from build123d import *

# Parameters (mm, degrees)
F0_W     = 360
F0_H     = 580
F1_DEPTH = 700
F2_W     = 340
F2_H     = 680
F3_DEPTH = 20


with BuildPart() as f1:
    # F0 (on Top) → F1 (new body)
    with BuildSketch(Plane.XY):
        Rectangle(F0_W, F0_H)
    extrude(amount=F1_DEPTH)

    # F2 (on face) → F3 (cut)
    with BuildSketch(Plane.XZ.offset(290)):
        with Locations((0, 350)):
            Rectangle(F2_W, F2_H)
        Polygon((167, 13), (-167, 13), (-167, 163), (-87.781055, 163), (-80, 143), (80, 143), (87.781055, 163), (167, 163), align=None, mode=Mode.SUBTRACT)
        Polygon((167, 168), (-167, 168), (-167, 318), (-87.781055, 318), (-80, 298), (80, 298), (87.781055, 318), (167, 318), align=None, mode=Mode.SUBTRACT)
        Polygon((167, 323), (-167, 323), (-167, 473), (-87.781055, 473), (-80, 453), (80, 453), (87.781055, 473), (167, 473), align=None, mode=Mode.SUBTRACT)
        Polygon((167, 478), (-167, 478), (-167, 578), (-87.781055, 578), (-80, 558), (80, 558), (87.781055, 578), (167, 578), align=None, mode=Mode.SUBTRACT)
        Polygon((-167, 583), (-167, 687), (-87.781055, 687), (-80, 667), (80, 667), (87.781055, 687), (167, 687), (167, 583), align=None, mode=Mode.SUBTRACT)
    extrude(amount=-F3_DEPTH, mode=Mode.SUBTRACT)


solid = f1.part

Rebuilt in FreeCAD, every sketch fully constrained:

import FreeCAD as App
import Part
import Sketcher
from FreeCAD import Vector

doc = App.newDocument("Part")
body = doc.addObject("PartDesign::Body", "Body")

sketch1 = body.newObject("Sketcher::SketchObject", "Sketch")
sketch1.AttachmentSupport = (doc.getObject("XY_Plane"), [""])
sketch1.MapMode = "FlatFace"
sketch1.addGeometry(Part.LineSegment(Vector(-180, 290, 0), Vector(-180, -290, 0)), False)
sketch1.addGeometry(Part.LineSegment(Vector(-180, -290, 0), Vector(180, -290, 0)), False)
sketch1.addGeometry(Part.LineSegment(Vector(180, -290, 0), Vector(180, 290, 0)), False)
sketch1.addGeometry(Part.LineSegment(Vector(180, 290, 0), Vector(-180, 290, 0)), False)
sketch1.addConstraint(Sketcher.Constraint("Coincident", 0, 2, 1, 1))
sketch1.addConstraint(Sketcher.Constraint("Coincident", 1, 2, 2, 1))
sketch1.addConstraint(Sketcher.Constraint("Coincident", 2, 2, 3, 1))
sketch1.addConstraint(Sketcher.Constraint("Coincident", 3, 2, 0, 1))
sketch1.addConstraint(Sketcher.Constraint("Vertical", 0))
sketch1.addConstraint(Sketcher.Constraint("Horizontal", 1))
sketch1.addConstraint(Sketcher.Constraint("Vertical", 2))
sketch1.addConstraint(Sketcher.Constraint("Horizontal", 3))
sketch1.addConstraint(Sketcher.Constraint("Symmetric", 0, 2, 2, 2, -1, 1))
sketch1.addConstraint(Sketcher.Constraint("DistanceX", 1, 1, 1, 2, 360.0))
sketch1.addConstraint(Sketcher.Constraint("DistanceY", 0, 2, 0, 1, 580.0))
pad1 = body.newObject("PartDesign::Pad", "Pad")
pad1.Profile = sketch1
pad1.Length = 700

sketch2 = body.newObject("Sketcher::SketchObject", "Sketch001")
sketch2.AttachmentSupport = (doc.getObject("XZ_Plane"), [""])
sketch2.MapMode = "FlatFace"
sketch2.AttachmentOffset = App.Placement(Vector(0, 0, 290), App.Rotation())
sketch2.addGeometry(Part.LineSegment(Vector(-170, 690, 0), Vector(-170, 10, 0)), False)
sketch2.addGeometry(Part.LineSegment(Vector(-170, 10, 0), Vector(170, 10, 0)), False)
sketch2.addGeometry(Part.LineSegment(Vector(170, 10, 0), Vector(170, 690, 0)), False)
sketch2.addGeometry(Part.LineSegment(Vector(170, 690, 0), Vector(-170, 690, 0)), False)
sketch2.addGeometry(Part.LineSegment(Vector(167, 163, 0), Vector(167, 13, 0)), False)
sketch2.addGeometry(Part.LineSegment(Vector(167, 13, 0), Vector(-167, 13, 0)), False)
sketch2.addGeometry(Part.LineSegment(Vector(-167, 13, 0), Vector(-167, 163, 0)), False)
sketch2.addGeometry(Part.LineSegment(Vector(-167, 163, 0), Vector(-87.781055, 163, 0)), False)
sketch2.addGeometry(Part.LineSegment(Vector(-87.781055, 163, 0), Vector(-80, 143, 0)), False)
sketch2.addGeometry(Part.LineSegment(Vector(-80, 143, 0), Vector(80, 143, 0)), False)
sketch2.addGeometry(Part.LineSegment(Vector(80, 143, 0), Vector(87.781055, 163, 0)), False)
sketch2.addGeometry(Part.LineSegment(Vector(87.781055, 163, 0), Vector(167, 163, 0)), False)
sketch2.addGeometry(Part.LineSegment(Vector(167, 318, 0), Vector(167, 168, 0)), False)
sketch2.addGeometry(Part.LineSegment(Vector(167, 168, 0), Vector(-167, 168, 0)), False)
sketch2.addGeometry(Part.LineSegment(Vector(-167, 168, 0), Vector(-167, 318, 0)), False)
sketch2.addGeometry(Part.LineSegment(Vector(-167, 318, 0), Vector(-87.781055, 318, 0)), False)
sketch2.addGeometry(Part.LineSegment(Vector(-87.781055, 318, 0), Vector(-80, 298, 0)), False)
sketch2.addGeometry(Part.LineSegment(Vector(-80, 298, 0), Vector(80, 298, 0)), False)
sketch2.addGeometry(Part.LineSegment(Vector(80, 298, 0), Vector(87.781055, 318, 0)), False)
sketch2.addGeometry(Part.LineSegment(Vector(87.781055, 318, 0), Vector(167, 318, 0)), False)
sketch2.addGeometry(Part.LineSegment(Vector(167, 473, 0), Vector(167, 323, 0)), False)
sketch2.addGeometry(Part.LineSegment(Vector(167, 323, 0), Vector(-167, 323, 0)), False)
sketch2.addGeometry(Part.LineSegment(Vector(-167, 323, 0), Vector(-167, 473, 0)), False)
sketch2.addGeometry(Part.LineSegment(Vector(-167, 473, 0), Vector(-87.781055, 473, 0)), False)
sketch2.addGeometry(Part.LineSegment(Vector(-87.781055, 473, 0), Vector(-80, 453, 0)), False)
sketch2.addGeometry(Part.LineSegment(Vector(-80, 453, 0), Vector(80, 453, 0)), False)
sketch2.addGeometry(Part.LineSegment(Vector(80, 453, 0), Vector(87.781055, 473, 0)), False)
sketch2.addGeometry(Part.LineSegment(Vector(87.781055, 473, 0), Vector(167, 473, 0)), False)
sketch2.addGeometry(Part.LineSegment(Vector(167, 578, 0), Vector(167, 478, 0)), False)
sketch2.addGeometry(Part.LineSegment(Vector(167, 478, 0), Vector(-167, 478, 0)), False)
sketch2.addGeometry(Part.LineSegment(Vector(-167, 478, 0), Vector(-167, 578, 0)), False)
sketch2.addGeometry(Part.LineSegment(Vector(-167, 578, 0), Vector(-87.781055, 578, 0)), False)
sketch2.addGeometry(Part.LineSegment(Vector(-87.781055, 578, 0), Vector(-80, 558, 0)), False)
sketch2.addGeometry(Part.LineSegment(Vector(-80, 558, 0), Vector(80, 558, 0)), False)
sketch2.addGeometry(Part.LineSegment(Vector(80, 558, 0), Vector(87.781055, 578, 0)), False)
sketch2.addGeometry(Part.LineSegment(Vector(87.781055, 578, 0), Vector(167, 578, 0)), False)
sketch2.addGeometry(Part.LineSegment(Vector(167, 583, 0), Vector(-167, 583, 0)), False)
sketch2.addGeometry(Part.LineSegment(Vector(-167, 583, 0), Vector(-167, 687, 0)), False)
sketch2.addGeometry(Part.LineSegment(Vector(-167, 687, 0), Vector(-87.781055, 687, 0)), False)
sketch2.addGeometry(Part.LineSegment(Vector(-87.781055, 687, 0), Vector(-80, 667, 0)), False)
sketch2.addGeometry(Part.LineSegment(Vector(-80, 667, 0), Vector(80, 667, 0)), False)
sketch2.addGeometry(Part.LineSegment(Vector(80, 667, 0), Vector(87.781055, 687, 0)), False)
sketch2.addGeometry(Part.LineSegment(Vector(87.781055, 687, 0), Vector(167, 687, 0)), False)
sketch2.addGeometry(Part.LineSegment(Vector(167, 687, 0), Vector(167, 583, 0)), False)
sketch2.addConstraint(Sketcher.Constraint("Coincident", 0, 2, 1, 1))
sketch2.addConstraint(Sketcher.Constraint("Coincident", 1, 2, 2, 1))
sketch2.addConstraint(Sketcher.Constraint("Coincident", 2, 2, 3, 1))
sketch2.addConstraint(Sketcher.Constraint("Coincident", 3, 2, 0, 1))
sketch2.addConstraint(Sketcher.Constraint("Coincident", 4, 2, 5, 1))
sketch2.addConstraint(Sketcher.Constraint("Coincident", 5, 2, 6, 1))
sketch2.addConstraint(Sketcher.Constraint("Coincident", 6, 2, 7, 1))
sketch2.addConstraint(Sketcher.Constraint("Coincident", 7, 2, 8, 1))
sketch2.addConstraint(Sketcher.Constraint("Coincident", 8, 2, 9, 1))
sketch2.addConstraint(Sketcher.Constraint("Coincident", 9, 2, 10, 1))
sketch2.addConstraint(Sketcher.Constraint("Coincident", 10, 2, 11, 1))
sketch2.addConstraint(Sketcher.Constraint("Coincident", 11, 2, 4, 1))
sketch2.addConstraint(Sketcher.Constraint("Coincident", 12, 2, 13, 1))
sketch2.addConstraint(Sketcher.Constraint("Coincident", 13, 2, 14, 1))
sketch2.addConstraint(Sketcher.Constraint("Coincident", 14, 2, 15, 1))
sketch2.addConstraint(Sketcher.Constraint("Coincident", 15, 2, 16, 1))
sketch2.addConstraint(Sketcher.Constraint("Coincident", 16, 2, 17, 1))
sketch2.addConstraint(Sketcher.Constraint("Coincident", 17, 2, 18, 1))
sketch2.addConstraint(Sketcher.Constraint("Coincident", 18, 2, 19, 1))
sketch2.addConstraint(Sketcher.Constraint("Coincident", 19, 2, 12, 1))
sketch2.addConstraint(Sketcher.Constraint("Coincident", 20, 2, 21, 1))
sketch2.addConstraint(Sketcher.Constraint("Coincident", 21, 2, 22, 1))
sketch2.addConstraint(Sketcher.Constraint("Coincident", 22, 2, 23, 1))
sketch2.addConstraint(Sketcher.Constraint("Coincident", 23, 2, 24, 1))
sketch2.addConstraint(Sketcher.Constraint("Coincident", 24, 2, 25, 1))
sketch2.addConstraint(Sketcher.Constraint("Coincident", 25, 2, 26, 1))
sketch2.addConstraint(Sketcher.Constraint("Coincident", 26, 2, 27, 1))
sketch2.addConstraint(Sketcher.Constraint("Coincident", 27, 2, 20, 1))
sketch2.addConstraint(Sketcher.Constraint("Coincident", 28, 2, 29, 1))
sketch2.addConstraint(Sketcher.Constraint("Coincident", 29, 2, 30, 1))
sketch2.addConstraint(Sketcher.Constraint("Coincident", 30, 2, 31, 1))
sketch2.addConstraint(Sketcher.Constraint("Coincident", 31, 2, 32, 1))
sketch2.addConstraint(Sketcher.Constraint("Coincident", 32, 2, 33, 1))
sketch2.addConstraint(Sketcher.Constraint("Coincident", 33, 2, 34, 1))
sketch2.addConstraint(Sketcher.Constraint("Coincident", 34, 2, 35, 1))
sketch2.addConstraint(Sketcher.Constraint("Coincident", 35, 2, 28, 1))
sketch2.addConstraint(Sketcher.Constraint("Coincident", 36, 2, 37, 1))
sketch2.addConstraint(Sketcher.Constraint("Coincident", 37, 2, 38, 1))
sketch2.addConstraint(Sketcher.Constraint("Coincident", 38, 2, 39, 1))
sketch2.addConstraint(Sketcher.Constraint("Coincident", 39, 2, 40, 1))
sketch2.addConstraint(Sketcher.Constraint("Coincident", 40, 2, 41, 1))
sketch2.addConstraint(Sketcher.Constraint("Coincident", 41, 2, 42, 1))
sketch2.addConstraint(Sketcher.Constraint("Coincident", 42, 2, 43, 1))
sketch2.addConstraint(Sketcher.Constraint("Coincident", 43, 2, 36, 1))
sketch2.addConstraint(Sketcher.Constraint("Vertical", 0))
sketch2.addConstraint(Sketcher.Constraint("Horizontal", 1))
sketch2.addConstraint(Sketcher.Constraint("Vertical", 2))
sketch2.addConstraint(Sketcher.Constraint("Horizontal", 3))
sketch2.addConstraint(Sketcher.Constraint("Vertical", 4))
sketch2.addConstraint(Sketcher.Constraint("Horizontal", 5))
sketch2.addConstraint(Sketcher.Constraint("Vertical", 6))
sketch2.addConstraint(Sketcher.Constraint("Horizontal", 7))
sketch2.addConstraint(Sketcher.Constraint("Horizontal", 9))
sketch2.addConstraint(Sketcher.Constraint("Horizontal", 11))
sketch2.addConstraint(Sketcher.Constraint("Vertical", 12))
sketch2.addConstraint(Sketcher.Constraint("Horizontal", 13))
sketch2.addConstraint(Sketcher.Constraint("Vertical", 14))
sketch2.addConstraint(Sketcher.Constraint("Horizontal", 15))
sketch2.addConstraint(Sketcher.Constraint("Horizontal", 17))
sketch2.addConstraint(Sketcher.Constraint("Horizontal", 19))
sketch2.addConstraint(Sketcher.Constraint("Vertical", 20))
sketch2.addConstraint(Sketcher.Constraint("Horizontal", 21))
sketch2.addConstraint(Sketcher.Constraint("Vertical", 22))
sketch2.addConstraint(Sketcher.Constraint("Horizontal", 23))
sketch2.addConstraint(Sketcher.Constraint("Horizontal", 25))
sketch2.addConstraint(Sketcher.Constraint("Horizontal", 27))
sketch2.addConstraint(Sketcher.Constraint("Vertical", 28))
sketch2.addConstraint(Sketcher.Constraint("Horizontal", 29))
sketch2.addConstraint(Sketcher.Constraint("Vertical", 30))
sketch2.addConstraint(Sketcher.Constraint("Horizontal", 31))
sketch2.addConstraint(Sketcher.Constraint("Horizontal", 33))
sketch2.addConstraint(Sketcher.Constraint("Horizontal", 35))
sketch2.addConstraint(Sketcher.Constraint("Horizontal", 36))
sketch2.addConstraint(Sketcher.Constraint("Vertical", 37))
sketch2.addConstraint(Sketcher.Constraint("Horizontal", 38))
sketch2.addConstraint(Sketcher.Constraint("Horizontal", 40))
sketch2.addConstraint(Sketcher.Constraint("Horizontal", 42))
sketch2.addConstraint(Sketcher.Constraint("Vertical", 43))
sketch2.addConstraint(Sketcher.Constraint("Symmetric", 7, 2, 10, 2, -2))
sketch2.addConstraint(Sketcher.Constraint("Symmetric", 15, 2, 18, 2, -2))
sketch2.addConstraint(Sketcher.Constraint("Symmetric", 23, 2, 26, 2, -2))
sketch2.addConstraint(Sketcher.Constraint("Symmetric", 31, 2, 34, 2, -2))
sketch2.addConstraint(Sketcher.Constraint("Symmetric", 38, 2, 41, 2, -2))
sketch2.addConstraint(Sketcher.Constraint("Parallel", 8, 16))
sketch2.addConstraint(Sketcher.Constraint("Parallel", 10, 18))
sketch2.addConstraint(Sketcher.Constraint("Parallel", 16, 24))
sketch2.addConstraint(Sketcher.Constraint("Parallel", 18, 26))
sketch2.addConstraint(Sketcher.Constraint("Parallel", 24, 32))
sketch2.addConstraint(Sketcher.Constraint("Parallel", 26, 34))
sketch2.addConstraint(Sketcher.Constraint("Parallel", 32, 39))
sketch2.addConstraint(Sketcher.Constraint("Parallel", 34, 41))
sketch2.addConstraint(Sketcher.Constraint("Vertical", 11, 2, 12, 2))
sketch2.addConstraint(Sketcher.Constraint("Vertical", 6, 2, 13, 2))
sketch2.addConstraint(Sketcher.Constraint("Vertical", 7, 2, 15, 2))
sketch2.addConstraint(Sketcher.Constraint("Vertical", 8, 2, 16, 2))
sketch2.addConstraint(Sketcher.Constraint("Vertical", 19, 2, 20, 2))
sketch2.addConstraint(Sketcher.Constraint("Vertical", 14, 2, 21, 2))
sketch2.addConstraint(Sketcher.Constraint("Vertical", 15, 2, 23, 2))
sketch2.addConstraint(Sketcher.Constraint("Vertical", 16, 2, 24, 2))
sketch2.addConstraint(Sketcher.Constraint("Vertical", 27, 2, 28, 2))
sketch2.addConstraint(Sketcher.Constraint("Vertical", 22, 2, 29, 2))
sketch2.addConstraint(Sketcher.Constraint("Vertical", 23, 2, 31, 2))
sketch2.addConstraint(Sketcher.Constraint("Vertical", 24, 2, 32, 2))
sketch2.addConstraint(Sketcher.Constraint("Vertical", 30, 2, 36, 2))
sketch2.addConstraint(Sketcher.Constraint("Vertical", 31, 2, 38, 2))
sketch2.addConstraint(Sketcher.Constraint("Vertical", 32, 2, 39, 2))
sketch2.addConstraint(Sketcher.Constraint("Vertical", 35, 2, 42, 2))
sketch2.addConstraint(Sketcher.Constraint("Equal", 7, 11))
sketch2.addConstraint(Sketcher.Constraint("Equal", 6, 12))
sketch2.addConstraint(Sketcher.Constraint("Equal", 14, 20))
sketch2.addConstraint(Sketcher.Constraint("Equal", 8, 10))
sketch2.addConstraint(Sketcher.Constraint("DistanceX", 1, 1, 1, 2, 340.0))
sketch2.addConstraint(Sketcher.Constraint("DistanceX", 5, 2, 5, 1, 334.0))
sketch2.addConstraint(Sketcher.Constraint("DistanceX", 9, 1, 9, 2, 160.0))
sketch2.addConstraint(Sketcher.Constraint("DistanceY", 0, 2, 0, 1, 680.0))
sketch2.addConstraint(Sketcher.Constraint("DistanceY", 4, 2, 4, 1, 150.0))
sketch2.addConstraint(Sketcher.Constraint("DistanceY", 28, 2, 28, 1, 100.0))
sketch2.addConstraint(Sketcher.Constraint("DistanceY", 37, 1, 37, 2, 104.0))
sketch2.addConstraint(Sketcher.Constraint("DistanceX", 0, 2, -1, 1, 170.0))
sketch2.addConstraint(Sketcher.Constraint("DistanceY", -1, 1, 0, 2, 10.0))
sketch2.addConstraint(Sketcher.Constraint("DistanceY", -1, 1, 4, 2, 13.0))
sketch2.addConstraint(Sketcher.Constraint("DistanceY", -1, 1, 8, 2, 143.0))
sketch2.addConstraint(Sketcher.Constraint("DistanceY", -1, 1, 12, 2, 168.0))
sketch2.addConstraint(Sketcher.Constraint("DistanceY", -1, 1, 20, 2, 323.0))
sketch2.addConstraint(Sketcher.Constraint("DistanceY", -1, 1, 28, 2, 478.0))
sketch2.addConstraint(Sketcher.Constraint("DistanceY", -1, 1, 36, 2, 583.0))
sketch2.addConstraint(Sketcher.Constraint("DistanceX", 7, 1, 7, 2, 79.218945))
pocket1 = body.newObject("PartDesign::Pocket", "Pocket")
pocket1.Profile = sketch2
pocket1.Length = 20

doc.recompute()
